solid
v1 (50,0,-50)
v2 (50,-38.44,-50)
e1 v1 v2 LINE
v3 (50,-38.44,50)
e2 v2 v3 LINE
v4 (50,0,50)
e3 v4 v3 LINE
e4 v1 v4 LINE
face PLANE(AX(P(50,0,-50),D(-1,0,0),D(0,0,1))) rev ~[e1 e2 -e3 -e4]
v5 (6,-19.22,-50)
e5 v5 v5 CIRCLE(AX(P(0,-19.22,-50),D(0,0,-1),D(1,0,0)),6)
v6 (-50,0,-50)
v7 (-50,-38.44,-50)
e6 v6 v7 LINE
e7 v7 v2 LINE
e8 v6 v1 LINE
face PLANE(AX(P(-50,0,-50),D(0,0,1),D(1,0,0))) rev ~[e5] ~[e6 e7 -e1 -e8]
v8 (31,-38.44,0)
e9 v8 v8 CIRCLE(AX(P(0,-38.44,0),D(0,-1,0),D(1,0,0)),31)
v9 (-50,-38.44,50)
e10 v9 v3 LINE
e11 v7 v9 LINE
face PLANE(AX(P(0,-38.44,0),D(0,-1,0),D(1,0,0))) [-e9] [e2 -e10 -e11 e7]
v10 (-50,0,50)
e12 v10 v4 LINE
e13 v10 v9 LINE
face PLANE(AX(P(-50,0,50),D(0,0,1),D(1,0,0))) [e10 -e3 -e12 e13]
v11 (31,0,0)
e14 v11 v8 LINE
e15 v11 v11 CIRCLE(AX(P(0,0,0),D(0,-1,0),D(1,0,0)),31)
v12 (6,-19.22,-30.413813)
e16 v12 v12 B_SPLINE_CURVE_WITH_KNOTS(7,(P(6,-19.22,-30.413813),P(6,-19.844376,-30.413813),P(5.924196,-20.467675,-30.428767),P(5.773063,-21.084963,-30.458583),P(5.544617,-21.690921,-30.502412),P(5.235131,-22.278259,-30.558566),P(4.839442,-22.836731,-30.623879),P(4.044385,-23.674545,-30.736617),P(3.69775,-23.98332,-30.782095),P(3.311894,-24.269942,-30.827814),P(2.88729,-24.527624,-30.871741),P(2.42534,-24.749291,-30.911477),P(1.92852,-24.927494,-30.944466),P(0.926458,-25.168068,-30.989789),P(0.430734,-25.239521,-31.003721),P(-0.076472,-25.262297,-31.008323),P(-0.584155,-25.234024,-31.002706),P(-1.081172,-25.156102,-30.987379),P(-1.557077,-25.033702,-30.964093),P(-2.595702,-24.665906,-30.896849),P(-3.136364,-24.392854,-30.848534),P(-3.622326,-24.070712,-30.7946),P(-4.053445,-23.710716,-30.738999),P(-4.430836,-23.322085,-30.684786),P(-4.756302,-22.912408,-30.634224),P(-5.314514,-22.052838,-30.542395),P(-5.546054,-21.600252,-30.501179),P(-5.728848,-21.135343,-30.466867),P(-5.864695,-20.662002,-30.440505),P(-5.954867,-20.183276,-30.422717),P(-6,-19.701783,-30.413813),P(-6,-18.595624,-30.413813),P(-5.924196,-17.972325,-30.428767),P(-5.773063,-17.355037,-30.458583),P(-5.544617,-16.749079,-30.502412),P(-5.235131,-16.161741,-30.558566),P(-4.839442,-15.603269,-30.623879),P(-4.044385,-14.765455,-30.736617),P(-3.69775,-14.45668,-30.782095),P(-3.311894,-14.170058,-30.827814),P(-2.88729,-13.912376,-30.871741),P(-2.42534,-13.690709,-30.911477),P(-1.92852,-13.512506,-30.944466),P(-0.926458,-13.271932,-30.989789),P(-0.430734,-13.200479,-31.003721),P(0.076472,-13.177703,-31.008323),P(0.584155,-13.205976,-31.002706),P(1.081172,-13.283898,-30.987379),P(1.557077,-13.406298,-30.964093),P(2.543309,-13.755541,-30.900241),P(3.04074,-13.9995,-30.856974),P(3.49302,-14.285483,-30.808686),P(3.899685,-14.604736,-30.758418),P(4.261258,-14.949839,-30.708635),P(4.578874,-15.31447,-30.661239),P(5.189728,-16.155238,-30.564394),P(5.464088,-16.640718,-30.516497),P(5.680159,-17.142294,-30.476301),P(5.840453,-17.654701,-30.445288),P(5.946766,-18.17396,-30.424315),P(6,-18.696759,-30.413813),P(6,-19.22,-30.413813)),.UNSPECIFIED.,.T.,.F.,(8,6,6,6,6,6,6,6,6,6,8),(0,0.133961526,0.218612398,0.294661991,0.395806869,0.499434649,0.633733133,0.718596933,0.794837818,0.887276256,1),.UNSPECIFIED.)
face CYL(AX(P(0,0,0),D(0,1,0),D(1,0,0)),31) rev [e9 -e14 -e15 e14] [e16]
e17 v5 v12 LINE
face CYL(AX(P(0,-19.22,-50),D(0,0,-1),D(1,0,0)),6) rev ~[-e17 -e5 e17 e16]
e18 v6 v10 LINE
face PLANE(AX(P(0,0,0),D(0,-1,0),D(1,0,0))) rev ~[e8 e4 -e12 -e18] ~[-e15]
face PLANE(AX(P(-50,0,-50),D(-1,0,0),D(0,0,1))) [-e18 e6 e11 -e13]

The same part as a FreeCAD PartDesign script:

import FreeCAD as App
import Part
import Sketcher


def add_polygon(sketch, points):
    """Adds a closed chain of lines whose ends are joined by coincident constraints."""
    first, n = sketch.GeometryCount, len(points)
    for a, b in zip(points, points[1:] + points[:1]):
        sketch.addGeometry(Part.LineSegment(App.Vector(*a, 0), App.Vector(*b, 0)), False)
    for i in range(n):
        sketch.addConstraint(Sketcher.Constraint("Coincident", first + i, 2, first + (i + 1) % n, 1))

doc = App.newDocument("Part")
body = doc.addObject("PartDesign::Body", "Body")

# Sketch on XZ plane
sketch1 = doc.addObject("Sketcher::SketchObject", "Sketch")
body.addObject(sketch1)
sketch1.AttachmentSupport = (doc.XZ_Plane, [""])
sketch1.MapMode = "FlatFace"
add_polygon(sketch1, [(-50, 50), (-50, -50), (50, -50), (50, 50)])  # lines 0-3
sketch1.addGeometry(Part.Circle(App.Vector(0, 0, 0), App.Vector(0, 0, 1), 31), False)  # 4
sketch1.addConstraint([
    Sketcher.Constraint("Vertical", 0),
    Sketcher.Constraint("Horizontal", 1),
    Sketcher.Constraint("Vertical", 2),
    Sketcher.Constraint("Horizontal", 3),
    Sketcher.Constraint("Coincident", 4, 3, -1, 1),
    Sketcher.Constraint("Symmetric", 0, 2, 2, 2, -1, 1),
    Sketcher.Constraint("Equal", 3, 0),
    Sketcher.Constraint("Diameter", 4, 62.0),
    Sketcher.Constraint("DistanceX", 1, 1, 1, 2, 100.0),
])
pad1 = doc.addObject("PartDesign::Pad", "Pad")
body.addObject(pad1)
pad1.Profile = sketch1
pad1.Length = 38.44

# Sketch on XY plane
sketch2 = doc.addObject("Sketcher::SketchObject", "Sketch001")
body.addObject(sketch2)
sketch2.AttachmentSupport = (doc.XY_Plane, [""])
sketch2.MapMode = "FlatFace"
sketch2.AttachmentOffset = App.Placement(App.Vector(0, 0, -50), App.Rotation())
sketch2.addGeometry(Part.Circle(App.Vector(0, -19.22, 0), App.Vector(0, 0, 1), 6), False)
sketch2.addConstraint([
    Sketcher.Constraint("PointOnObject", 0, 3, -2),
    Sketcher.Constraint("Diameter", 0, 12.0),
    Sketcher.Constraint("DistanceY", 0, 3, -1, 1, 19.22),
])
pocket1 = doc.addObject("PartDesign::Pocket", "Pocket")
body.addObject(pocket1)
pocket1.Profile = sketch2
pocket1.Length = 19.587187
pocket1.Reversed = True

doc.recompute()
